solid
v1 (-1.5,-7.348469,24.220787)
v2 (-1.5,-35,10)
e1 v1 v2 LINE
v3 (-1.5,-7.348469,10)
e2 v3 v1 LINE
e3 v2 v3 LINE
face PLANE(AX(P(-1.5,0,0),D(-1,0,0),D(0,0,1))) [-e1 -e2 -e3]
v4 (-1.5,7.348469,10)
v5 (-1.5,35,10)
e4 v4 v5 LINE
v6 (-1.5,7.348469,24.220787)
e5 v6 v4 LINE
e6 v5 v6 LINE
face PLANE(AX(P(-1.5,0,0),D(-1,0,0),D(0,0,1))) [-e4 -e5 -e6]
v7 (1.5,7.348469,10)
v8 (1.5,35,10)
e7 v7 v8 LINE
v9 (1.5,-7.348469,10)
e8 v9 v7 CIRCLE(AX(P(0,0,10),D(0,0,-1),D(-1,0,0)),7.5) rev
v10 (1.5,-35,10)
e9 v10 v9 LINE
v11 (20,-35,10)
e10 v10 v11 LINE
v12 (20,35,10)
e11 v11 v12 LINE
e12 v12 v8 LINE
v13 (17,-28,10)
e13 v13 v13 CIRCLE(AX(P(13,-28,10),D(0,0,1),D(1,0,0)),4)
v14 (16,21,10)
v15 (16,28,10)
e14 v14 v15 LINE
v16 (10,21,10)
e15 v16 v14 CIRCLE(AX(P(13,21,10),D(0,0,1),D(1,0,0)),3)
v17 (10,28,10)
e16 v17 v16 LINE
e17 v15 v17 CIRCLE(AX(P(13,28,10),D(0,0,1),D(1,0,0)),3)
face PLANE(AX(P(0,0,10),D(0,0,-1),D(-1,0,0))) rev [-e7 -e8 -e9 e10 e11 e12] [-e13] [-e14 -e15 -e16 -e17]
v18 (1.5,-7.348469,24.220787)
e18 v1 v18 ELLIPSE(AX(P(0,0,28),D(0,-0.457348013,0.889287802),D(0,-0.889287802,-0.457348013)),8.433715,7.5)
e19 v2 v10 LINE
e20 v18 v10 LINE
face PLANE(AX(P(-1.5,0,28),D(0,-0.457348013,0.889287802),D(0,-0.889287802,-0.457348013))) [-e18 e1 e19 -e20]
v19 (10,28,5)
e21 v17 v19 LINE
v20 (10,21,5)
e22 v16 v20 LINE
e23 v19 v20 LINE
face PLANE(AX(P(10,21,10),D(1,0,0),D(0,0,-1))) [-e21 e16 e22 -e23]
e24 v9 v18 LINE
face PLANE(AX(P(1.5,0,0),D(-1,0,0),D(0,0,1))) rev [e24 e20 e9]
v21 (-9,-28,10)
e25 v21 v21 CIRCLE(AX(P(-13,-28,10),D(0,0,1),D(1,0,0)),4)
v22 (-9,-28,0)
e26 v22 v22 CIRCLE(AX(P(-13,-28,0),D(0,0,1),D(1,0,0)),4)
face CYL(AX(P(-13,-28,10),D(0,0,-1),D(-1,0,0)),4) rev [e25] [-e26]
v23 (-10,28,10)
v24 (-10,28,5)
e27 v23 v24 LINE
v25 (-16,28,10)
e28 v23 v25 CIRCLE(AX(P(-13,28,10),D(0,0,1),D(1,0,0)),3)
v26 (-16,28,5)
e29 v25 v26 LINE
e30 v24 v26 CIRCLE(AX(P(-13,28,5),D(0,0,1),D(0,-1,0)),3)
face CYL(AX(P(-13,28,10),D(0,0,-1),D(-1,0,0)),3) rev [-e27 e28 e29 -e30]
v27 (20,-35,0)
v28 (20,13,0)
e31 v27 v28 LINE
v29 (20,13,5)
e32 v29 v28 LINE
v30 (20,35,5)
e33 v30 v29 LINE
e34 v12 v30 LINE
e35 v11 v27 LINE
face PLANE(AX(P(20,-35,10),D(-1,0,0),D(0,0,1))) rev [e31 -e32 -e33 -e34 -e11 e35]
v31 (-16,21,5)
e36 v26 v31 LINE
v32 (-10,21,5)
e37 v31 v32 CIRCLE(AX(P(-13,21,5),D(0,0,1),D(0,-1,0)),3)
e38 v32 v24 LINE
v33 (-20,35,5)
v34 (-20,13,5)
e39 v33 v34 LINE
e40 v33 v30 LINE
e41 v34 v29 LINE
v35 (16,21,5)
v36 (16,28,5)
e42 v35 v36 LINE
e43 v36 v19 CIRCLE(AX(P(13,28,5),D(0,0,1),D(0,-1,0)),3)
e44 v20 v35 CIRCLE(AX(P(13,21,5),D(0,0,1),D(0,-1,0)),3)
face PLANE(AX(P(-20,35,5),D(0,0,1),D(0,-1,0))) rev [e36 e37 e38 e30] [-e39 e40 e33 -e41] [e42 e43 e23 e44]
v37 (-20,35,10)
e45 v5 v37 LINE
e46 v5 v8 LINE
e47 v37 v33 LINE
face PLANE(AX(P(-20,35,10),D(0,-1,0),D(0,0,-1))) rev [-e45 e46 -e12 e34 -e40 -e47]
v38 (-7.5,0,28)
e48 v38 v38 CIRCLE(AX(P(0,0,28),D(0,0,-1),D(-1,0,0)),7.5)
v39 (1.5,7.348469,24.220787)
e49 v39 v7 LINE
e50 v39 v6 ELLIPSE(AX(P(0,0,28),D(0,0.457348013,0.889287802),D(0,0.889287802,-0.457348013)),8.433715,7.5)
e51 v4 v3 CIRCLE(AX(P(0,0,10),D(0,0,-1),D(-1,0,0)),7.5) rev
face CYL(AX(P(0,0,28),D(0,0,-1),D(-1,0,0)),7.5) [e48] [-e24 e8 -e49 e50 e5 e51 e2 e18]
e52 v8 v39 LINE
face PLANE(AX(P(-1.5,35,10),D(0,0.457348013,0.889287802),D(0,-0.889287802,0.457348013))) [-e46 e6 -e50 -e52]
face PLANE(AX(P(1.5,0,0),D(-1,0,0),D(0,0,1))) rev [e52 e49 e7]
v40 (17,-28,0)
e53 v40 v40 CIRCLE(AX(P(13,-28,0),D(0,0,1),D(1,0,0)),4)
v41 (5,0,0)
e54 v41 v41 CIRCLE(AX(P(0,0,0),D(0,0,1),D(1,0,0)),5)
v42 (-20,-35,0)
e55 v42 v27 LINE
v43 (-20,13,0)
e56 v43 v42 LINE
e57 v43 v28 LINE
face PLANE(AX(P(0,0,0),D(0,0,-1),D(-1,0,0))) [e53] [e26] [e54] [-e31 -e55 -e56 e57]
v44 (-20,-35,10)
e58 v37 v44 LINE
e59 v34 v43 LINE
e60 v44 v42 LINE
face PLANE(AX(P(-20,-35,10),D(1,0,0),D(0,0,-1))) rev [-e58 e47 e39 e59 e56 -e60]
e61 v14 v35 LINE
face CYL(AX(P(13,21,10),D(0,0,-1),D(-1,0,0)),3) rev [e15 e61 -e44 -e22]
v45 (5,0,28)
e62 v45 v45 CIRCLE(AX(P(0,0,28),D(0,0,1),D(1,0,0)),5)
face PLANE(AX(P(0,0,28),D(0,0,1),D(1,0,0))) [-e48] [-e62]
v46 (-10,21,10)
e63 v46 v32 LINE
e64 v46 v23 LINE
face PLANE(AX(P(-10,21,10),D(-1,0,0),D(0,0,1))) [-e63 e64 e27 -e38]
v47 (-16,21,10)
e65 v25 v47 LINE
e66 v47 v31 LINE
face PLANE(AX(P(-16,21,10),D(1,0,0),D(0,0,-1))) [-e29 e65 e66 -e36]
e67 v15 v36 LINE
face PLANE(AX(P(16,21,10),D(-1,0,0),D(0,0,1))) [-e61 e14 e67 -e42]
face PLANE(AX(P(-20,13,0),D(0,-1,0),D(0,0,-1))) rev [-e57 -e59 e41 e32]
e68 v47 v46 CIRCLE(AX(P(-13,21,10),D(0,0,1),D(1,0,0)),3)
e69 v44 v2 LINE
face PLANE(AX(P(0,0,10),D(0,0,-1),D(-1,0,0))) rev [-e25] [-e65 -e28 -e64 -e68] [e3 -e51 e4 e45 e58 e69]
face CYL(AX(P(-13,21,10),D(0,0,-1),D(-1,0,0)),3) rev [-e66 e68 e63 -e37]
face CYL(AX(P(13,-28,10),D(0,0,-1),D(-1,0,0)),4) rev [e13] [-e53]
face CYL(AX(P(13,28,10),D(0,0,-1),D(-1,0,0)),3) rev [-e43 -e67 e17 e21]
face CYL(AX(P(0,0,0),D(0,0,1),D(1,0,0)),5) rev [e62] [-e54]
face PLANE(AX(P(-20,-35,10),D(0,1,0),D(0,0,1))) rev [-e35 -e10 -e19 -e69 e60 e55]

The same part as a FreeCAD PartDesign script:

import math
import FreeCAD as App
import Part
import Sketcher


def add_polygon(sketch, points):
    """Adds a closed chain of lines whose ends are joined by coincident constraints."""
    first, n = sketch.GeometryCount, len(points)
    for a, b in zip(points, points[1:] + points[:1]):
        sketch.addGeometry(Part.LineSegment(App.Vector(*a, 0), App.Vector(*b, 0)), False)
    for i in range(n):
        sketch.addConstraint(Sketcher.Constraint("Coincident", first + i, 2, first + (i + 1) % n, 1))

doc = App.newDocument("Part")
body = doc.addObject("PartDesign::Body", "Body")

sketch1 = doc.addObject("Sketcher::SketchObject", "Sketch")
body.addObject(sketch1)
sketch1.AttachmentSupport = (doc.XY_Plane, [""])
sketch1.MapMode = "FlatFace"
add_polygon(sketch1, [(-20, 35), (-20, -35), (20, -35), (20, 35)])
sketch1.addGeometry(Part.Circle(App.Vector(-13, -28, 0), App.Vector(0, 0, 1), 4), False)
sketch1.addGeometry(Part.Circle(App.Vector(13, -28, 0), App.Vector(0, 0, 1), 4), False)
sketch1.addGeometry(Part.ArcOfCircle(Part.Circle(App.Vector(-13, 21, 0), App.Vector(0, 0, 1), 3), math.radians(180), math.radians(360)), False)
sketch1.addGeometry(Part.LineSegment(App.Vector(-16, 21, 0), App.Vector(-16, 28, 0)), False)
sketch1.addGeometry(Part.ArcOfCircle(Part.Circle(App.Vector(-13, 28, 0), App.Vector(0, 0, 1), 3), math.radians(0), math.radians(180)), False)
sketch1.addGeometry(Part.LineSegment(App.Vector(-10, 28, 0), App.Vector(-10, 21, 0)), False)
sketch1.addGeometry(Part.ArcOfCircle(Part.Circle(App.Vector(13, 21, 0), App.Vector(0, 0, 1), 3), math.radians(180), math.radians(360)), False)
sketch1.addGeometry(Part.LineSegment(App.Vector(10, 21, 0), App.Vector(10, 28, 0)), False)
sketch1.addGeometry(Part.ArcOfCircle(Part.Circle(App.Vector(13, 28, 0), App.Vector(0, 0, 1), 3), math.radians(0), math.radians(180)), False)
sketch1.addGeometry(Part.LineSegment(App.Vector(16, 28, 0), App.Vector(16, 21, 0)), False)
sketch1.addConstraint(Sketcher.Constraint("Tangent", 6, 1, 7, 1))
sketch1.addConstraint(Sketcher.Constraint("Tangent", 7, 2, 8, 2))
sketch1.addConstraint(Sketcher.Constraint("Tangent", 8, 1, 9, 1))
sketch1.addConstraint(Sketcher.Constraint("Tangent", 9, 2, 6, 2))
sketch1.addConstraint(Sketcher.Constraint("Tangent", 10, 1, 11, 1))
sketch1.addConstraint(Sketcher.Constraint("Tangent", 11, 2, 12, 2))
sketch1.addConstraint(Sketcher.Constraint("Tangent", 12, 1, 13, 1))
sketch1.addConstraint(Sketcher.Constraint("Tangent", 13, 2, 10, 2))
sketch1.addConstraint(Sketcher.Constraint("Vertical", 0))
sketch1.addConstraint(Sketcher.Constraint("Horizontal", 1))
sketch1.addConstraint(Sketcher.Constraint("Vertical", 2))
sketch1.addConstraint(Sketcher.Constraint("Horizontal", 3))
sketch1.addConstraint(Sketcher.Constraint("Vertical", 7))
sketch1.addConstraint(Sketcher.Constraint("Vertical", 9))
sketch1.addConstraint(Sketcher.Constraint("Vertical", 11))
sketch1.addConstraint(Sketcher.Constraint("Vertical", 13))
sketch1.addConstraint(Sketcher.Constraint("Equal", 4, 5))
sketch1.addConstraint(Sketcher.Constraint("Equal", 8, 10))
sketch1.addConstraint(Sketcher.Constraint("Symmetric", 5, 3, 8, 3, -1, 1))
sketch1.addConstraint(Sketcher.Constraint("Symmetric", 4, 3, 12, 3, -1, 1))
sketch1.addConstraint(Sketcher.Constraint("Symmetric", 0, 2, 2, 2, -1, 1))
sketch1.addConstraint(Sketcher.Constraint("Symmetric", 4, 3, 5, 3, -2))
sketch1.addConstraint(Sketcher.Constraint("Horizontal", 6, 3, 10, 3))
sketch1.addConstraint(Sketcher.Constraint("Diameter", 4, 8.0))
sketch1.addConstraint(Sketcher.Constraint("Radius", 6, 3.0))
sketch1.addConstraint(Sketcher.Constraint("DistanceX", 1, 1, 1, 2, 40.0))
sketch1.addConstraint(Sketcher.Constraint("DistanceY", 0, 2, 0, 1, 70.0))
sketch1.addConstraint(Sketcher.Constraint("DistanceY", 7, 1, 7, 2, 7.0))
sketch1.addConstraint(Sketcher.Constraint("DistanceX", 4, 3, -1, 1, 13.0))
sketch1.addConstraint(Sketcher.Constraint("DistanceY", 4, 3, -1, 1, 28.0))
pad1 = doc.addObject("PartDesign::Pad", "Pad")
body.addObject(pad1)
pad1.Profile = sketch1
pad1.Length = 10

sketch2 = doc.addObject("Sketcher::SketchObject", "Sketch001")
body.addObject(sketch2)
sketch2.AttachmentSupport = (doc.YZ_Plane, [""])
sketch2.MapMode = "FlatFace"
sketch2.AttachmentOffset = App.Placement(App.Vector(0, 0, 20), App.Rotation())
add_polygon(sketch2, [(35, 5), (13, 5), (13, 0), (35, 0)])
sketch2.addConstraint(Sketcher.Constraint("Horizontal", 0))
sketch2.addConstraint(Sketcher.Constraint("Vertical", 1))
sketch2.addConstraint(Sketcher.Constraint("Horizontal", 2))
sketch2.addConstraint(Sketcher.Constraint("Vertical", 3))
sketch2.addConstraint(Sketcher.Constraint("PointOnObject", 1, 2, -1))
sketch2.addConstraint(Sketcher.Constraint("DistanceX", 0, 2, 0, 1, 22.0))
sketch2.addConstraint(Sketcher.Constraint("DistanceY", 1, 2, 1, 1, 5.0))
sketch2.addConstraint(Sketcher.Constraint("DistanceX", -1, 1, 0, 2, 13.0))
pocket1 = doc.addObject("PartDesign::Pocket", "Pocket")
body.addObject(pocket1)
pocket1.Profile = sketch2
pocket1.Type = "ThroughAll"

sketch3 = doc.addObject("Sketcher::SketchObject", "Sketch002")
body.addObject(sketch3)
sketch3.AttachmentSupport = (doc.XY_Plane, [""])
sketch3.MapMode = "FlatFace"
sketch3.AttachmentOffset = App.Placement(App.Vector(0, 0, 10), App.Rotation())
sketch3.addGeometry(Part.Circle(App.Vector(0, 0, 0), App.Vector(0, 0, 1), 8), False)
sketch3.addConstraint(Sketcher.Constraint("Coincident", 0, 3, -1, 1))
sketch3.addConstraint(Sketcher.Constraint("Diameter", 0, 15.0))
pad2 = doc.addObject("PartDesign::Pad", "Pad001")
body.addObject(pad2)
pad2.Profile = sketch3
pad2.Length = 18

sketch4 = doc.addObject("Sketcher::SketchObject", "Sketch003")
body.addObject(sketch4)
sketch4.AttachmentSupport = (doc.XY_Plane, [""])
sketch4.MapMode = "FlatFace"
sketch4.AttachmentOffset = App.Placement(App.Vector(0, 0, 28), App.Rotation())
sketch4.addGeometry(Part.Circle(App.Vector(0, 0, 0), App.Vector(0, 0, 1), 10), False)
sketch4.addConstraint(Sketcher.Constraint("Coincident", 0, 3, -1, 1))
sketch4.addConstraint(Sketcher.Constraint("Diameter", 0, 20.0))
pad3 = doc.addObject("PartDesign::Pad", "Pad002")
body.addObject(pad3)
pad3.Profile = sketch4
pad3.Length = 2
pad3.Reversed = True

sketch5 = doc.addObject("Sketcher::SketchObject", "Sketch004")
body.addObject(sketch5)
sketch5.AttachmentSupport = (doc.YZ_Plane, [""])
sketch5.MapMode = "FlatFace"
add_polygon(sketch5, [(35, 10), (0, 28), (-35, 10)])
sketch5.addConstraint(Sketcher.Constraint("Horizontal", 2))
sketch5.addConstraint(Sketcher.Constraint("PointOnObject", 0, 2, -2))
sketch5.addConstraint(Sketcher.Constraint("Equal", 0, 1))
sketch5.addConstraint(Sketcher.Constraint("DistanceX", 2, 1, 2, 2, 70.0))
sketch5.addConstraint(Sketcher.Constraint("DistanceY", -1, 1, 0, 2, 28.0))
sketch5.addConstraint(Sketcher.Constraint("DistanceY", -1, 1, 1, 2, 10.0))
pad4 = doc.addObject("PartDesign::Pad", "Pad003")
body.addObject(pad4)
pad4.Profile = sketch5
pad4.Type = "TwoLengths"
pad4.Length = 1.5
pad4.Length2 = 1.5

sketch6 = doc.addObject("Sketcher::SketchObject", "Sketch005")
body.addObject(sketch6)
sketch6.AttachmentSupport = (doc.XY_Plane, [""])
sketch6.MapMode = "FlatFace"
sketch6.AttachmentOffset = App.Placement(App.Vector(0, 0, 28), App.Rotation())
sketch6.addGeometry(Part.Circle(App.Vector(0, 0, 0), App.Vector(0, 0, 1), 5), False)
sketch6.addConstraint(Sketcher.Constraint("Coincident", 0, 3, -1, 1))
sketch6.addConstraint(Sketcher.Constraint("Diameter", 0, 10.0))
pocket2 = doc.addObject("PartDesign::Pocket", "Pocket001")
body.addObject(pocket2)
pocket2.Profile = sketch6
pocket2.Type = "ThroughAll"

sketch7 = doc.addObject("Sketcher::SketchObject", "Sketch006")
body.addObject(sketch7)
sketch7.AttachmentSupport = (doc.XY_Plane, [""])
sketch7.MapMode = "FlatFace"
sketch7.AttachmentOffset = App.Placement(App.Vector(0, 0, 26), App.Rotation())
sketch7.addGeometry(Part.Circle(App.Vector(0, 0, 0), App.Vector(0, 0, 1), 10), False)
sketch7.addGeometry(Part.Circle(App.Vector(0, 0, 0), App.Vector(0, 0, 1), 8), False)
sketch7.addConstraint(Sketcher.Constraint("Coincident", 0, 3, -1, 1))
sketch7.addConstraint(Sketcher.Constraint("Coincident", 1, 3, -1, 1))
sketch7.addConstraint(Sketcher.Constraint("Diameter", 0, 20.0))
sketch7.addConstraint(Sketcher.Constraint("Diameter", 1, 15.0))
pocket3 = doc.addObject("PartDesign::Pocket", "Pocket002")
body.addObject(pocket3)
pocket3.Profile = sketch7
pocket3.Type = "ThroughAll"
pocket3.Reversed = True

doc.recompute()
